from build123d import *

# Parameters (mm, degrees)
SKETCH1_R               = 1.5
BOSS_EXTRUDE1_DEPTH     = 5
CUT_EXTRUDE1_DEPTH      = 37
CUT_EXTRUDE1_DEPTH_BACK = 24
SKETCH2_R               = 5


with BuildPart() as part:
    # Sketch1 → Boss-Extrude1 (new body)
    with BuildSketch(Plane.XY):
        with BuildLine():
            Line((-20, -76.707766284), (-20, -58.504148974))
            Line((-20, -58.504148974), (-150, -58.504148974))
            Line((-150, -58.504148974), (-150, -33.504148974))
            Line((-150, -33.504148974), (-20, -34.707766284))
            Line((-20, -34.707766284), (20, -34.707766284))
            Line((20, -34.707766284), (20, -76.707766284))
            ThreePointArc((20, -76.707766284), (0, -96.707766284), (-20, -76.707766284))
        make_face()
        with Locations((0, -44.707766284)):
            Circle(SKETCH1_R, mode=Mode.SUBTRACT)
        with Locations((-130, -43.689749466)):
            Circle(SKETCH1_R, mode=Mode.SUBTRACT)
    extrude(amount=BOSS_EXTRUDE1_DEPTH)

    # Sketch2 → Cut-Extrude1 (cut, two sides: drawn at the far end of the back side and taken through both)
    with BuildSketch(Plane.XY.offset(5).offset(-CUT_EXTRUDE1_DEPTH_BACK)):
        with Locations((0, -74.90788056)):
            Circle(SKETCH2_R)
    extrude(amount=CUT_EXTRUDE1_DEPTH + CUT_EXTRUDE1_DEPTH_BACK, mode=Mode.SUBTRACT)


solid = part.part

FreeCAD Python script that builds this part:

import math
import FreeCAD as App
import Part
import Sketcher

doc = App.newDocument("Part")
body = doc.addObject("PartDesign::Body", "Body")

# Sketch on XY plane
sketch1 = body.newObject("Sketcher::SketchObject", "Sketch")
sketch1.AttachmentSupport = (doc.getObject("XY_Plane"), [""])
sketch1.MapMode = "FlatFace"
sketch1.addGeometry([
    Part.LineSegment(App.Vector(-20, -58.504149, 0), App.Vector(-20, -76.707766, 0)),  # 0
    Part.ArcOfCircle(Part.Circle(App.Vector(0, -76.707766, 0), App.Vector(0, 0, 1), 20), math.radians(180), math.radians(360)),  # 1
    Part.LineSegment(App.Vector(20, -76.707766, 0), App.Vector(20, -34.707766, 0)),  # 2
    Part.LineSegment(App.Vector(20, -34.707766, 0), App.Vector(-20, -34.707766, 0)),  # 3
    Part.LineSegment(App.Vector(-20, -34.707766, 0), App.Vector(-150, -33.504149, 0)),  # 4
    Part.LineSegment(App.Vector(-150, -33.504149, 0), App.Vector(-150, -58.504149, 0)),  # 5
    Part.LineSegment(App.Vector(-150, -58.504149, 0), App.Vector(-20, -58.504149, 0)),  # 6
    Part.Circle(App.Vector(0, -44.707766, 0), App.Vector(0, 0, 1), 1.5),  # 7
    Part.Circle(App.Vector(-130, -43.689749, 0), App.Vector(0, 0, 1), 1.5),  # 8
], False)
sketch1.addConstraint([
    Sketcher.Constraint("Tangent", 0, 2, 1, 1),
    Sketcher.Constraint("Tangent", 1, 2, 2, 1),
    Sketcher.Constraint("Coincident", 2, 2, 3, 1),
    Sketcher.Constraint("Coincident", 3, 2, 4, 1),
    Sketcher.Constraint("Coincident", 4, 2, 5, 1),
    Sketcher.Constraint("Coincident", 5, 2, 6, 1),
    Sketcher.Constraint("Coincident", 6, 2, 0, 1),
    Sketcher.Constraint("Vertical", 0),
    Sketcher.Constraint("Vertical", 2),
    Sketcher.Constraint("Horizontal", 3),
    Sketcher.Constraint("Vertical", 5),
    Sketcher.Constraint("Horizontal", 6),
    Sketcher.Constraint("Equal", 7, 8),
    Sketcher.Constraint("PointOnObject", 1, 3, -2),
    Sketcher.Constraint("PointOnObject", 7, 3, -2),
    Sketcher.Constraint("Vertical", 0, 2, 3, 2),
    Sketcher.Constraint("Diameter", 7, 3.0),
    Sketcher.Constraint("Radius", 1, 20.0),
    Sketcher.Constraint("DistanceX", 6, 1, 6, 2, 130.0),
    Sketcher.Constraint("DistanceY", 2, 1, 2, 2, 42.0),
    Sketcher.Constraint("DistanceY", 5, 2, 5, 1, 25.0),
    Sketcher.Constraint("DistanceX", 8, 3, -1, 1, 130.0),
    Sketcher.Constraint("DistanceY", 1, 3, 7, 3, 32.0),
    Sketcher.Constraint("DistanceY", 8, 3, 4, 2, 10.1856),
    Sketcher.Constraint("Distance", 4, 130.005572),
    Sketcher.Constraint("DistanceY", 8, 3, -1, 1, 43.689749),
])
pad1 = body.newObject("PartDesign::Pad", "Pad")
pad1.Profile = sketch1
pad1.Length = 5

# Sketch on XY plane
sketch2 = body.newObject("Sketcher::SketchObject", "Sketch001")
sketch2.AttachmentSupport = (doc.getObject("XY_Plane"), [""])
sketch2.MapMode = "FlatFace"
sketch2.AttachmentOffset = App.Placement(App.Vector(0, 0, 5), App.Rotation())
sketch2.addGeometry(Part.Circle(App.Vector(0, -74.907881, 0), App.Vector(0, 0, 1), 5), False)
sketch2.addConstraint([
    Sketcher.Constraint("PointOnObject", 0, 3, -2),
    Sketcher.Constraint("Diameter", 0, 10.0),
    Sketcher.Constraint("DistanceY", 0, 3, -1, 1, 74.907881),
])
pocket1 = body.newObject("PartDesign::Pocket", "Pocket")
pocket1.Profile = sketch2
pocket1.Type = "ThroughAll"
pocket1.Midplane = True

doc.recompute()
